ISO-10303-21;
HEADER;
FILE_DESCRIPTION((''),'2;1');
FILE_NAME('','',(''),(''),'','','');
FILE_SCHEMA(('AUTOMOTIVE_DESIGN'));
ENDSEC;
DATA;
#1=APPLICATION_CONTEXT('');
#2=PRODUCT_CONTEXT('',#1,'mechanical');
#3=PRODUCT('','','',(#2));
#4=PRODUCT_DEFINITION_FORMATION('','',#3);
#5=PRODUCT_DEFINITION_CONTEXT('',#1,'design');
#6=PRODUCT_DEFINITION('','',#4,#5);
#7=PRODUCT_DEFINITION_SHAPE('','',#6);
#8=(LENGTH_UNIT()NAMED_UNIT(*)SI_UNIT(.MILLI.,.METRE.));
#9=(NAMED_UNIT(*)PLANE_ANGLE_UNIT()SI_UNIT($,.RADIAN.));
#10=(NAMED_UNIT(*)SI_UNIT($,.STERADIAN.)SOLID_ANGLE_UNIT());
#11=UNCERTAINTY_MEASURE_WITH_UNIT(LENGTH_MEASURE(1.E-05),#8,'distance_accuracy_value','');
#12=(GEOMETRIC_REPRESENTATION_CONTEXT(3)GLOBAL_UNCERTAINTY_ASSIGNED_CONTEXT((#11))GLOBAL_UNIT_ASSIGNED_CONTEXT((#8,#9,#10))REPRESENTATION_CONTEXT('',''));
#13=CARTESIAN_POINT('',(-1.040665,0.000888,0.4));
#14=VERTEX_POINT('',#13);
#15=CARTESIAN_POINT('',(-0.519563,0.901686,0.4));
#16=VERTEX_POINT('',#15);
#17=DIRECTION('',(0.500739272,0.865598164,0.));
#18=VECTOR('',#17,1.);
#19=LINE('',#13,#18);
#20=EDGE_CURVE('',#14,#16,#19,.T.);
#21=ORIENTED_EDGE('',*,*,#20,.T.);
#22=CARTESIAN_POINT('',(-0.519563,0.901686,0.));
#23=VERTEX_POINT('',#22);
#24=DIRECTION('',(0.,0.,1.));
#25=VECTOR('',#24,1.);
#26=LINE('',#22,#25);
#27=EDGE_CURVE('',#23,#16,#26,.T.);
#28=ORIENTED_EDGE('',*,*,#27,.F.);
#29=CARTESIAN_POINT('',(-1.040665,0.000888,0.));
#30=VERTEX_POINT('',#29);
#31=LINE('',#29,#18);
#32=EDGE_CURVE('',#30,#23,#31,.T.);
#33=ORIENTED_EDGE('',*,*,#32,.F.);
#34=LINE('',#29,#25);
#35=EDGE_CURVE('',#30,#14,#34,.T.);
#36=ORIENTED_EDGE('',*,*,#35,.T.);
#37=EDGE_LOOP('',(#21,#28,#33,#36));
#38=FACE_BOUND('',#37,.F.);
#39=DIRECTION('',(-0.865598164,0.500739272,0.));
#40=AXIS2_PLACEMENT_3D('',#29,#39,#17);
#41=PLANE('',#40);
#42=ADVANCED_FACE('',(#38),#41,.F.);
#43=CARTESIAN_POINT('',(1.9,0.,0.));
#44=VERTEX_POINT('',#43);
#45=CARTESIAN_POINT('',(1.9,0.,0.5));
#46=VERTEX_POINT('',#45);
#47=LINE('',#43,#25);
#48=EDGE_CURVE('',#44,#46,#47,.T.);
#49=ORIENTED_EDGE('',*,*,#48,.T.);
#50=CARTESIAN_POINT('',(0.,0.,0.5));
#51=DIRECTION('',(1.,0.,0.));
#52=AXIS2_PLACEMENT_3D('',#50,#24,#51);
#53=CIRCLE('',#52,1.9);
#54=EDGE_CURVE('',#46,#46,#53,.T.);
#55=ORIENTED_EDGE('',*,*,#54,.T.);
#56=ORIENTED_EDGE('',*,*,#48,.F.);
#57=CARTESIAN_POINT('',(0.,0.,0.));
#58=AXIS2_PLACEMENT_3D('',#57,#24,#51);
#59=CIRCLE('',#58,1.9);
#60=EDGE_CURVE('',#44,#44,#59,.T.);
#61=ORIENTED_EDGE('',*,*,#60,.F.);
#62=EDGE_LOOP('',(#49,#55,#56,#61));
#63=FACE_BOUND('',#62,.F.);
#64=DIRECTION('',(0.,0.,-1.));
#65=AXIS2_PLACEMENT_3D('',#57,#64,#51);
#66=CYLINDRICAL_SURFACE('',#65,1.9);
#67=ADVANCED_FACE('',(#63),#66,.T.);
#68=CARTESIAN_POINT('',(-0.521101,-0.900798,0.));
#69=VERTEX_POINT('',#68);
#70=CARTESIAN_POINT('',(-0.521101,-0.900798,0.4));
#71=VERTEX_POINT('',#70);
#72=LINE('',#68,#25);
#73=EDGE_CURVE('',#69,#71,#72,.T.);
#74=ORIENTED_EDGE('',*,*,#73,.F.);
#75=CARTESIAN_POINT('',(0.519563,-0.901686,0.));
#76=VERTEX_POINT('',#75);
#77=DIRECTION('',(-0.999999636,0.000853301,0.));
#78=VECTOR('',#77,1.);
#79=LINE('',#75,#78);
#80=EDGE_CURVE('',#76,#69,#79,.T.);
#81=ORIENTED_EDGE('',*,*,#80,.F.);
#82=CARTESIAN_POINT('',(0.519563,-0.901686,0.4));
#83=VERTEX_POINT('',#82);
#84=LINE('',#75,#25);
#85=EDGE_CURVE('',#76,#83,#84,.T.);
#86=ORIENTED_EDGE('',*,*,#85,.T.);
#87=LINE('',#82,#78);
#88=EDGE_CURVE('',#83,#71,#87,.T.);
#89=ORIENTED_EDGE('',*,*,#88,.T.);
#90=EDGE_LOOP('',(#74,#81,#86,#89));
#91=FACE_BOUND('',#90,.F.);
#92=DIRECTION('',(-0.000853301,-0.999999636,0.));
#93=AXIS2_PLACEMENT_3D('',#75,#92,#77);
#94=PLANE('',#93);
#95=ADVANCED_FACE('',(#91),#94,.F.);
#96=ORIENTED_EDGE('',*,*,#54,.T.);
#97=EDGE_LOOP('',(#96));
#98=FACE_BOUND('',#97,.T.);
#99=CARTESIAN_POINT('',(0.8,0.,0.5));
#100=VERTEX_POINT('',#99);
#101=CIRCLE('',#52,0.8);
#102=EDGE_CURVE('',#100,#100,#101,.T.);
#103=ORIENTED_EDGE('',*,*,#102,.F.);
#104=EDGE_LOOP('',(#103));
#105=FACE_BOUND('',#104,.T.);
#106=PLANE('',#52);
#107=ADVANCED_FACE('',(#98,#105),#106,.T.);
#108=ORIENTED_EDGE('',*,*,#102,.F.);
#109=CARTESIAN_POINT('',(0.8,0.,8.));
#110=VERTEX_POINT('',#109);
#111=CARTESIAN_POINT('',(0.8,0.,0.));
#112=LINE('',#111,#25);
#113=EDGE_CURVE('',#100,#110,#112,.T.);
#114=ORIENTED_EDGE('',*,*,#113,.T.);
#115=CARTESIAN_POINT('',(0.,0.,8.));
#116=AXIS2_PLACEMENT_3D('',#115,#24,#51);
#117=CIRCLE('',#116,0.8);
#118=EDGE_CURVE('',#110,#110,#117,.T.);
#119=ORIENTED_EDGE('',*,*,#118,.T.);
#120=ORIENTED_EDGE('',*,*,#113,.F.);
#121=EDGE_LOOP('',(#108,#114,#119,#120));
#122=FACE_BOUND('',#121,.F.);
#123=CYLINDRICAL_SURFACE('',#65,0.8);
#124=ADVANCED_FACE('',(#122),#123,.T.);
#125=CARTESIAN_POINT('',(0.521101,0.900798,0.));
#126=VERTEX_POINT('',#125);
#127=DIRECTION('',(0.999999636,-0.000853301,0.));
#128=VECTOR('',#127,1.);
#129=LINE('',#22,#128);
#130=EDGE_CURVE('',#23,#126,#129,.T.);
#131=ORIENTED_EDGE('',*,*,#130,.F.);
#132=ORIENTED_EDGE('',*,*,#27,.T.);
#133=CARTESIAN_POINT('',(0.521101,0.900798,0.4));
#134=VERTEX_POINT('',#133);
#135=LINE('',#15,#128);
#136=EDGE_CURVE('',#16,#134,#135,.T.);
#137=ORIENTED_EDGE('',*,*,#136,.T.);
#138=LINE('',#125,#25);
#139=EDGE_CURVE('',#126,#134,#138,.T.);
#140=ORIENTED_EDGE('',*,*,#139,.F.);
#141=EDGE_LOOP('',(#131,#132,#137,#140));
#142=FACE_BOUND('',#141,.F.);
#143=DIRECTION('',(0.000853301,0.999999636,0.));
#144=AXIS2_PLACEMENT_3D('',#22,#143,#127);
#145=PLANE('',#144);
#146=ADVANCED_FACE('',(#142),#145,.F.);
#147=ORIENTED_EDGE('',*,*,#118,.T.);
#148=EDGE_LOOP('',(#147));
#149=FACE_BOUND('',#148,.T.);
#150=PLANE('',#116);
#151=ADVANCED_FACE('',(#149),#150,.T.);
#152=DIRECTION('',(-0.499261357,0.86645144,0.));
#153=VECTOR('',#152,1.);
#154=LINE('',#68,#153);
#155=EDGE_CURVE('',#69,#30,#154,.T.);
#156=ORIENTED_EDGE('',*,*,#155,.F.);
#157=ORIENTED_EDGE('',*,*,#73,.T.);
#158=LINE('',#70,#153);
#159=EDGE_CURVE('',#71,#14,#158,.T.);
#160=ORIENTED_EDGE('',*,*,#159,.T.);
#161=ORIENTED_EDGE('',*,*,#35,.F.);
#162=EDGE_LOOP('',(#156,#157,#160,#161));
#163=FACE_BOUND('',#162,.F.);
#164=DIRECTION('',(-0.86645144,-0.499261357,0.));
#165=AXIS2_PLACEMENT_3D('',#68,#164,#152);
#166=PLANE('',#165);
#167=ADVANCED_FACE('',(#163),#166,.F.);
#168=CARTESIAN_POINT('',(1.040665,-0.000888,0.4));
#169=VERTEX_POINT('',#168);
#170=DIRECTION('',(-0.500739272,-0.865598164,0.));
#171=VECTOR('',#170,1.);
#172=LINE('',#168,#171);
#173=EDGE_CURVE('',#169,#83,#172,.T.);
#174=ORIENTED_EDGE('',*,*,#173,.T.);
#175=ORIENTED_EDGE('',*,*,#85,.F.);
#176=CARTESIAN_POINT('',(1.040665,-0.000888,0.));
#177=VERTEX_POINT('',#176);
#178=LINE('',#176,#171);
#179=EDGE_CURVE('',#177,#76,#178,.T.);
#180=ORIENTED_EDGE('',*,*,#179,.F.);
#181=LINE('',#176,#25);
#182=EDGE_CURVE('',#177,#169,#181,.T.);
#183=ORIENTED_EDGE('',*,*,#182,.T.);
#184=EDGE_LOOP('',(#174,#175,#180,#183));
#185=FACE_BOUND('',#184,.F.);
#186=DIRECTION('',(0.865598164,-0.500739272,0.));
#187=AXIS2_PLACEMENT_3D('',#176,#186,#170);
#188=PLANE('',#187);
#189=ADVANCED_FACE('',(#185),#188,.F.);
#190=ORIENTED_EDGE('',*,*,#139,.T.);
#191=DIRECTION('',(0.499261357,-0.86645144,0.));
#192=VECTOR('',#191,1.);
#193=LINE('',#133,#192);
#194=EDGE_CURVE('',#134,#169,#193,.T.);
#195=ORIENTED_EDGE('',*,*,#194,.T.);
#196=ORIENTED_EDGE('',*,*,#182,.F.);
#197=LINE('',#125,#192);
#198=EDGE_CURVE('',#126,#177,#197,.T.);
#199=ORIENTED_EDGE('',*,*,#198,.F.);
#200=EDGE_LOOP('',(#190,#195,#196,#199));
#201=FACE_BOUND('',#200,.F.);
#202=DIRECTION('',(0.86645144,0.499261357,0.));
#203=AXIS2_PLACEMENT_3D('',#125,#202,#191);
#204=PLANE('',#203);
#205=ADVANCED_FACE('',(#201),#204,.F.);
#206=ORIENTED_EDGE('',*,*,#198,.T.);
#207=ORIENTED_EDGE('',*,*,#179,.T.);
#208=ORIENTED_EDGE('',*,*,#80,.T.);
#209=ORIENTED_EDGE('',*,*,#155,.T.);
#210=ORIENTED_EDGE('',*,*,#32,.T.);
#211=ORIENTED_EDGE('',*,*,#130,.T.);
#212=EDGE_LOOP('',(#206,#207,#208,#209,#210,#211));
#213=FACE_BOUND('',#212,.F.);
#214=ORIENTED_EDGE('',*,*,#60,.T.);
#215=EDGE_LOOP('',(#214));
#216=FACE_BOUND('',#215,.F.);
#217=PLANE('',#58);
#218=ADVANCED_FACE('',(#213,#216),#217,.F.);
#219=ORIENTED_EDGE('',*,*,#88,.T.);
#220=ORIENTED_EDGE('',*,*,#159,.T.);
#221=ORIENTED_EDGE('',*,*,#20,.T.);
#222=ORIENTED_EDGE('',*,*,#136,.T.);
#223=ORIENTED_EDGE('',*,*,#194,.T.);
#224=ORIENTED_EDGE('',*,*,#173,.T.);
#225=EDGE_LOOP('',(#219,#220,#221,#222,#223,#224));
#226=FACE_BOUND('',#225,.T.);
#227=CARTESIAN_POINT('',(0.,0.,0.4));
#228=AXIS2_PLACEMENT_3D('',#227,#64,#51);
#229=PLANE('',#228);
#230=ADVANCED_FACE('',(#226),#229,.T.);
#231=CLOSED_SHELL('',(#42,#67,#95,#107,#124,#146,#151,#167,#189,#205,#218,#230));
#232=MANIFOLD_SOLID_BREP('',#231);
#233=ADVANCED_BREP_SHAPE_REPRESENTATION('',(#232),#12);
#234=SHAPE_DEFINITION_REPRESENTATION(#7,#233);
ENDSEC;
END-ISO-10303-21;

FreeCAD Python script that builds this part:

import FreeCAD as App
import Part
import Sketcher
Q = App.Units.Quantity


def add_polygon(sketch, points):
    """Adds a closed chain of lines whose ends are joined by coincident constraints."""
    first, n = sketch.GeometryCount, len(points)
    for a, b in zip(points, points[1:] + points[:1]):
        sketch.addGeometry(Part.LineSegment(App.Vector(*a, 0), App.Vector(*b, 0)), False)
    for i in range(n):
        sketch.addConstraint(Sketcher.Constraint("Coincident", first + i, 2, first + (i + 1) % n, 1))

doc = App.newDocument("Part")
body = doc.addObject("PartDesign::Body", "Body")

# Sketch on XY plane
sketch1 = doc.addObject("Sketcher::SketchObject", "Sketch")
body.addObject(sketch1)
sketch1.AttachmentSupport = (doc.XY_Plane, [""])
sketch1.MapMode = "FlatFace"
sketch1.addGeometry(Part.Circle(App.Vector(0, 0, 0), App.Vector(0, 0, 1), 0.8), False)
sketch1.addConstraint(Sketcher.Constraint("Coincident", 0, 3, -1, 1))
sketch1.addConstraint(Sketcher.Constraint("Diameter", 0, Q("1.6 mm")))
pad1 = doc.addObject("PartDesign::Pad", "Pad")
body.addObject(pad1)
pad1.Profile = sketch1
pad1.Length = 8

# Sketch on XY plane
sketch2 = doc.addObject("Sketcher::SketchObject", "Sketch001")
body.addObject(sketch2)
sketch2.AttachmentSupport = (doc.XY_Plane, [""])
sketch2.MapMode = "FlatFace"
sketch2.addGeometry(Part.Circle(App.Vector(0, 0, 0), App.Vector(0, 0, 1), 1.9), False)
sketch2.addGeometry(Part.Circle(App.Vector(0, 0, 0), App.Vector(0, 0, 1), 0.8), False)
sketch2.addConstraint(Sketcher.Constraint("Coincident", 0, 3, -1, 1))
sketch2.addConstraint(Sketcher.Constraint("Coincident", 1, 3, -1, 1))
sketch2.addConstraint(Sketcher.Constraint("Diameter", 0, Q("3.8 mm")))
sketch2.addConstraint(Sketcher.Constraint("Diameter", 1, Q("1.6 mm")))
pad2 = doc.addObject("PartDesign::Pad", "Pad001")
body.addObject(pad2)
pad2.Profile = sketch2
pad2.Length = 0.5

# Sketch on XY plane
sketch3 = doc.addObject("Sketcher::SketchObject", "Sketch002")
body.addObject(sketch3)
sketch3.AttachmentSupport = (doc.XY_Plane, [""])
sketch3.MapMode = "FlatFace"
add_polygon(sketch3, [(0.521101, 0.900798), (1.040665, -0.000888), (0.519563, -0.901686), (-0.521101, -0.900798), (-1.040665, 0.000888), (-0.519563, 0.901686)])  # lines 0-5
sketch3.addConstraint(Sketcher.Constraint("Symmetric", 0, 2, 3, 2, -1, 1))
sketch3.addConstraint(Sketcher.Constraint("Symmetric", 1, 2, 4, 2, -1, 1))
sketch3.addConstraint(Sketcher.Constraint("Symmetric", 2, 2, 5, 2, -1, 1))
sketch3.addConstraint(Sketcher.Constraint("Equal", 0, 1))
sketch3.addConstraint(Sketcher.Constraint("Equal", 1, 2))
sketch3.addConstraint(Sketcher.Constraint("DistanceX", 2, 2, -1, 1, Q("0.521101 mm")))
sketch3.addConstraint(Sketcher.Constraint("DistanceX", 1, 2, 0, 2, Q("0.521102 mm")))
sketch3.addConstraint(Sketcher.Constraint("DistanceY", 0, 2, -1, 1, Q("0.000888 mm")))
sketch3.addConstraint(Sketcher.Constraint("DistanceY", 2, 2, 0, 2, Q("0.89991 mm")))
pocket1 = doc.addObject("PartDesign::Pocket", "Pocket")
body.addObject(pocket1)
pocket1.Profile = sketch3
pocket1.Length = 0.4
pocket1.Reversed = True

doc.recompute()
